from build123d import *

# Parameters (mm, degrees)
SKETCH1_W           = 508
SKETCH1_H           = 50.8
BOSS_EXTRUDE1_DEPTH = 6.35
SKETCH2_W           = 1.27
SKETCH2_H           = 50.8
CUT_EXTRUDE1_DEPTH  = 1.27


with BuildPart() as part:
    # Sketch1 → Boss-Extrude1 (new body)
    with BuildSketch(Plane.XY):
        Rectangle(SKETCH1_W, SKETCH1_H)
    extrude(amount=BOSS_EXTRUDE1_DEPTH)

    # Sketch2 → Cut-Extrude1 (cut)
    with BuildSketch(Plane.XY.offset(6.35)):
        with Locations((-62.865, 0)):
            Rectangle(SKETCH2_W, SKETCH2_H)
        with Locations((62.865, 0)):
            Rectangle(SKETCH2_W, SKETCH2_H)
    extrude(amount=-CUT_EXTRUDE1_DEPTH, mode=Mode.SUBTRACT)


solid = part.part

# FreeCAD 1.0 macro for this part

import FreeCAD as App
import Part
import Sketcher

V = App.Vector
Q = App.Units.Quantity


def add_polygon(sketch, points):
    """Adds a closed chain of lines whose ends are joined by coincident constraints."""
    first, n = sketch.GeometryCount, len(points)
    for a, b in zip(points, points[1:] + points[:1]):
        sketch.addGeometry(Part.LineSegment(App.Vector(*a, 0), App.Vector(*b, 0)), False)
    for i in range(n):
        sketch.addConstraint(Sketcher.Constraint("Coincident", first + i, 2, first + (i + 1) % n, 1))

doc = App.newDocument("Part")
body = doc.addObject("PartDesign::Body", "Body")

# Sketch on XY plane
sketch1 = body.newObject("Sketcher::SketchObject", "Sketch")
sketch1.AttachmentSupport = (doc.getObject("XY_Plane"), [""])
sketch1.MapMode = "FlatFace"
add_polygon(sketch1, [(-254, 25), (-254, -25), (254, -25), (254, 25)])  # lines 0-3
sketch1.addConstraint([
    Sketcher.Constraint("Vertical", 0),
    Sketcher.Constraint("Horizontal", 1),
    Sketcher.Constraint("Vertical", 2),
    Sketcher.Constraint("Horizontal", 3),
    Sketcher.Constraint("Symmetric", 0, 2, 2, 2, -1, 1),
    Sketcher.Constraint("DistanceX", 1, 1, 1, 2, Q("20 in")),
    Sketcher.Constraint("DistanceY", 0, 2, 0, 1, Q("2 in")),
])
pad1 = body.newObject("PartDesign::Pad", "Pad")
pad1.Profile = sketch1
pad1.Length = Q("0.25 in")

# Sketch on XY plane
sketch2 = body.newObject("Sketcher::SketchObject", "Sketch001")
sketch2.AttachmentSupport = (doc.getObject("XY_Plane"), [""])
sketch2.MapMode = "FlatFace"
sketch2.AttachmentOffset = App.Placement(V(0, 0, 0.25 * 25.4), App.Rotation())
add_polygon(sketch2, [(-63.5, 25.4), (-63.5, -25.4), (-62.2, -25.4), (-62.2, 25.4)])  # lines 0-3
add_polygon(sketch2, [(62.2, 25.4), (62.2, -25.4), (63.5, -25.4), (63.5, 25.4)])  # lines 4-7
sketch2.addConstraint([
    Sketcher.Constraint("Vertical", 0),
    Sketcher.Constraint("Horizontal", 1),
    Sketcher.Constraint("Vertical", 2),
    Sketcher.Constraint("Horizontal", 3),
    Sketcher.Constraint("Vertical", 4),
    Sketcher.Constraint("Horizontal", 5),
    Sketcher.Constraint("Vertical", 6),
    Sketcher.Constraint("Horizontal", 7),
    Sketcher.Constraint("Symmetric", 2, 2, 4, 2, -1, 1),
    Sketcher.Constraint("Symmetric", 0, 2, 6, 2, -1, 1),
    Sketcher.Constraint("Horizontal", 1, 2, 4, 2),
    Sketcher.Constraint("DistanceY", 0, 2, 0, 1, Q("2 in")),
    Sketcher.Constraint("DistanceX", 0, 2, 5, 2, Q("5 in")),
    Sketcher.Constraint("DistanceX", 1, 1, 1, 2, Q("0.05 in")),
])
pocket1 = body.newObject("PartDesign::Pocket", "Pocket")
pocket1.Profile = sketch2
pocket1.Length = Q("0.05 in")

doc.recompute()
